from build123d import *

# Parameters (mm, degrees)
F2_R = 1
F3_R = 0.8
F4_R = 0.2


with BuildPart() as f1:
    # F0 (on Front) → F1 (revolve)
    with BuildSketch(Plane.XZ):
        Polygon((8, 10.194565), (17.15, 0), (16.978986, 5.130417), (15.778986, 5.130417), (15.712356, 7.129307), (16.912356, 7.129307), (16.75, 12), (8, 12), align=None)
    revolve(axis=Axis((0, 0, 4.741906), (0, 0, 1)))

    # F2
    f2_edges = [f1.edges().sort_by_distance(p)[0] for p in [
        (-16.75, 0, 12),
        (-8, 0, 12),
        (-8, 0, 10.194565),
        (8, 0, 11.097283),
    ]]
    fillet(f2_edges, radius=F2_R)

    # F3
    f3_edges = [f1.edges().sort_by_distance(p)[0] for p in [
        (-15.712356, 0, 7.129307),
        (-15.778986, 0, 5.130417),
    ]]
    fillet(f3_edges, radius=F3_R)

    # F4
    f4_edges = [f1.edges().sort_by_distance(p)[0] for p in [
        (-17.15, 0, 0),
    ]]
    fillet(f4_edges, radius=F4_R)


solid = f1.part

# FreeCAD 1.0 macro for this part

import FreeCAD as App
import Part
import Sketcher
Q = App.Units.Quantity


def edges_at(feature, points):
    """Names of the edges that pass closest to the given points."""
    edges = feature.Shape.Edges
    near = lambda p: min(range(len(edges)), key=lambda i: edges[i].distToShape(Part.Vertex(*p))[0])
    return sorted({f"Edge{near(p) + 1}" for p in points})


def add_polygon(sketch, points):
    """Adds a closed chain of lines whose ends are joined by coincident constraints."""
    first, n = sketch.GeometryCount, len(points)
    for a, b in zip(points, points[1:] + points[:1]):
        sketch.addGeometry(Part.LineSegment(App.Vector(*a, 0), App.Vector(*b, 0)), False)
    for i in range(n):
        sketch.addConstraint(Sketcher.Constraint("Coincident", first + i, 2, first + (i + 1) % n, 1))

doc = App.newDocument("Part")
body = doc.addObject("PartDesign::Body", "Body")

# Sketch on XZ plane
sketch1 = body.newObject("Sketcher::SketchObject", "Sketch")
sketch1.AttachmentSupport = (doc.getObject("XZ_Plane"), [""])
sketch1.MapMode = "FlatFace"
add_polygon(sketch1, [(8, 10.2), (17.1, 0), (17, 5.1), (15.8, 5.1), (15.7, 7.1), (16.9, 7.1), (16.8, 12), (8, 12)])  # lines 0-7
sketch1.addConstraint([
    Sketcher.Constraint("Horizontal", 2),
    Sketcher.Constraint("Horizontal", 4),
    Sketcher.Constraint("Horizontal", 6),
    Sketcher.Constraint("Vertical", 7),
    Sketcher.Constraint("PointOnObject", 0, 2, -1),
    Sketcher.Constraint("Parallel", 1, 3),
    Sketcher.Constraint("Parallel", 3, 5),
    Sketcher.Constraint("Equal", 2, 4),
    Sketcher.Constraint("Distance", 3, Q("2 mm")),
    Sketcher.Constraint("DistanceX", 2, 2, 2, 1, Q("1.2 mm")),
    Sketcher.Constraint("DistanceY", -1, 1, 5, 2, Q("12 mm")),
    Sketcher.Constraint("DistanceX", -1, 1, 6, 2, Q("8 mm")),
    Sketcher.Constraint("DistanceX", 6, 2, 6, 1, Q("8.75 mm")),
    Sketcher.Constraint("DistanceX", 5, 2, 0, 2, Q("0.4 mm")),
    Sketcher.Constraint("Distance", 0, Q("13.6986 mm")),
    Sketcher.Constraint("Distance", 5, Q("4.873398 mm")),
])
revolution = body.newObject("PartDesign::Revolution", "Revolution")
revolution.Profile = sketch1
revolution.ReferenceAxis = (sketch1, ["V_Axis"])
revolution.Angle = 360
doc.recompute()

fillet = body.newObject("PartDesign::Fillet", "Fillet")
fillet.Base = (revolution, edges_at(revolution, [
    (-16.75, 0, 12),
    (-8, 0, 12),
    (-8, 0, 10.195),
    (8, 0, 11.097),
]))
fillet.Radius = 1
doc.recompute()

fillet2 = body.newObject("PartDesign::Fillet", "Fillet001")
fillet2.Base = (fillet, edges_at(fillet, [(-15.712, 0, 7.129), (-15.779, 0, 5.13)]))
fillet2.Radius = 0.8
doc.recompute()

fillet3 = body.newObject("PartDesign::Fillet", "Fillet002")
fillet3.Base = (fillet2, edges_at(fillet2, [(-17.15, 0, 0)]))
fillet3.Radius = 0.2

doc.recompute()
